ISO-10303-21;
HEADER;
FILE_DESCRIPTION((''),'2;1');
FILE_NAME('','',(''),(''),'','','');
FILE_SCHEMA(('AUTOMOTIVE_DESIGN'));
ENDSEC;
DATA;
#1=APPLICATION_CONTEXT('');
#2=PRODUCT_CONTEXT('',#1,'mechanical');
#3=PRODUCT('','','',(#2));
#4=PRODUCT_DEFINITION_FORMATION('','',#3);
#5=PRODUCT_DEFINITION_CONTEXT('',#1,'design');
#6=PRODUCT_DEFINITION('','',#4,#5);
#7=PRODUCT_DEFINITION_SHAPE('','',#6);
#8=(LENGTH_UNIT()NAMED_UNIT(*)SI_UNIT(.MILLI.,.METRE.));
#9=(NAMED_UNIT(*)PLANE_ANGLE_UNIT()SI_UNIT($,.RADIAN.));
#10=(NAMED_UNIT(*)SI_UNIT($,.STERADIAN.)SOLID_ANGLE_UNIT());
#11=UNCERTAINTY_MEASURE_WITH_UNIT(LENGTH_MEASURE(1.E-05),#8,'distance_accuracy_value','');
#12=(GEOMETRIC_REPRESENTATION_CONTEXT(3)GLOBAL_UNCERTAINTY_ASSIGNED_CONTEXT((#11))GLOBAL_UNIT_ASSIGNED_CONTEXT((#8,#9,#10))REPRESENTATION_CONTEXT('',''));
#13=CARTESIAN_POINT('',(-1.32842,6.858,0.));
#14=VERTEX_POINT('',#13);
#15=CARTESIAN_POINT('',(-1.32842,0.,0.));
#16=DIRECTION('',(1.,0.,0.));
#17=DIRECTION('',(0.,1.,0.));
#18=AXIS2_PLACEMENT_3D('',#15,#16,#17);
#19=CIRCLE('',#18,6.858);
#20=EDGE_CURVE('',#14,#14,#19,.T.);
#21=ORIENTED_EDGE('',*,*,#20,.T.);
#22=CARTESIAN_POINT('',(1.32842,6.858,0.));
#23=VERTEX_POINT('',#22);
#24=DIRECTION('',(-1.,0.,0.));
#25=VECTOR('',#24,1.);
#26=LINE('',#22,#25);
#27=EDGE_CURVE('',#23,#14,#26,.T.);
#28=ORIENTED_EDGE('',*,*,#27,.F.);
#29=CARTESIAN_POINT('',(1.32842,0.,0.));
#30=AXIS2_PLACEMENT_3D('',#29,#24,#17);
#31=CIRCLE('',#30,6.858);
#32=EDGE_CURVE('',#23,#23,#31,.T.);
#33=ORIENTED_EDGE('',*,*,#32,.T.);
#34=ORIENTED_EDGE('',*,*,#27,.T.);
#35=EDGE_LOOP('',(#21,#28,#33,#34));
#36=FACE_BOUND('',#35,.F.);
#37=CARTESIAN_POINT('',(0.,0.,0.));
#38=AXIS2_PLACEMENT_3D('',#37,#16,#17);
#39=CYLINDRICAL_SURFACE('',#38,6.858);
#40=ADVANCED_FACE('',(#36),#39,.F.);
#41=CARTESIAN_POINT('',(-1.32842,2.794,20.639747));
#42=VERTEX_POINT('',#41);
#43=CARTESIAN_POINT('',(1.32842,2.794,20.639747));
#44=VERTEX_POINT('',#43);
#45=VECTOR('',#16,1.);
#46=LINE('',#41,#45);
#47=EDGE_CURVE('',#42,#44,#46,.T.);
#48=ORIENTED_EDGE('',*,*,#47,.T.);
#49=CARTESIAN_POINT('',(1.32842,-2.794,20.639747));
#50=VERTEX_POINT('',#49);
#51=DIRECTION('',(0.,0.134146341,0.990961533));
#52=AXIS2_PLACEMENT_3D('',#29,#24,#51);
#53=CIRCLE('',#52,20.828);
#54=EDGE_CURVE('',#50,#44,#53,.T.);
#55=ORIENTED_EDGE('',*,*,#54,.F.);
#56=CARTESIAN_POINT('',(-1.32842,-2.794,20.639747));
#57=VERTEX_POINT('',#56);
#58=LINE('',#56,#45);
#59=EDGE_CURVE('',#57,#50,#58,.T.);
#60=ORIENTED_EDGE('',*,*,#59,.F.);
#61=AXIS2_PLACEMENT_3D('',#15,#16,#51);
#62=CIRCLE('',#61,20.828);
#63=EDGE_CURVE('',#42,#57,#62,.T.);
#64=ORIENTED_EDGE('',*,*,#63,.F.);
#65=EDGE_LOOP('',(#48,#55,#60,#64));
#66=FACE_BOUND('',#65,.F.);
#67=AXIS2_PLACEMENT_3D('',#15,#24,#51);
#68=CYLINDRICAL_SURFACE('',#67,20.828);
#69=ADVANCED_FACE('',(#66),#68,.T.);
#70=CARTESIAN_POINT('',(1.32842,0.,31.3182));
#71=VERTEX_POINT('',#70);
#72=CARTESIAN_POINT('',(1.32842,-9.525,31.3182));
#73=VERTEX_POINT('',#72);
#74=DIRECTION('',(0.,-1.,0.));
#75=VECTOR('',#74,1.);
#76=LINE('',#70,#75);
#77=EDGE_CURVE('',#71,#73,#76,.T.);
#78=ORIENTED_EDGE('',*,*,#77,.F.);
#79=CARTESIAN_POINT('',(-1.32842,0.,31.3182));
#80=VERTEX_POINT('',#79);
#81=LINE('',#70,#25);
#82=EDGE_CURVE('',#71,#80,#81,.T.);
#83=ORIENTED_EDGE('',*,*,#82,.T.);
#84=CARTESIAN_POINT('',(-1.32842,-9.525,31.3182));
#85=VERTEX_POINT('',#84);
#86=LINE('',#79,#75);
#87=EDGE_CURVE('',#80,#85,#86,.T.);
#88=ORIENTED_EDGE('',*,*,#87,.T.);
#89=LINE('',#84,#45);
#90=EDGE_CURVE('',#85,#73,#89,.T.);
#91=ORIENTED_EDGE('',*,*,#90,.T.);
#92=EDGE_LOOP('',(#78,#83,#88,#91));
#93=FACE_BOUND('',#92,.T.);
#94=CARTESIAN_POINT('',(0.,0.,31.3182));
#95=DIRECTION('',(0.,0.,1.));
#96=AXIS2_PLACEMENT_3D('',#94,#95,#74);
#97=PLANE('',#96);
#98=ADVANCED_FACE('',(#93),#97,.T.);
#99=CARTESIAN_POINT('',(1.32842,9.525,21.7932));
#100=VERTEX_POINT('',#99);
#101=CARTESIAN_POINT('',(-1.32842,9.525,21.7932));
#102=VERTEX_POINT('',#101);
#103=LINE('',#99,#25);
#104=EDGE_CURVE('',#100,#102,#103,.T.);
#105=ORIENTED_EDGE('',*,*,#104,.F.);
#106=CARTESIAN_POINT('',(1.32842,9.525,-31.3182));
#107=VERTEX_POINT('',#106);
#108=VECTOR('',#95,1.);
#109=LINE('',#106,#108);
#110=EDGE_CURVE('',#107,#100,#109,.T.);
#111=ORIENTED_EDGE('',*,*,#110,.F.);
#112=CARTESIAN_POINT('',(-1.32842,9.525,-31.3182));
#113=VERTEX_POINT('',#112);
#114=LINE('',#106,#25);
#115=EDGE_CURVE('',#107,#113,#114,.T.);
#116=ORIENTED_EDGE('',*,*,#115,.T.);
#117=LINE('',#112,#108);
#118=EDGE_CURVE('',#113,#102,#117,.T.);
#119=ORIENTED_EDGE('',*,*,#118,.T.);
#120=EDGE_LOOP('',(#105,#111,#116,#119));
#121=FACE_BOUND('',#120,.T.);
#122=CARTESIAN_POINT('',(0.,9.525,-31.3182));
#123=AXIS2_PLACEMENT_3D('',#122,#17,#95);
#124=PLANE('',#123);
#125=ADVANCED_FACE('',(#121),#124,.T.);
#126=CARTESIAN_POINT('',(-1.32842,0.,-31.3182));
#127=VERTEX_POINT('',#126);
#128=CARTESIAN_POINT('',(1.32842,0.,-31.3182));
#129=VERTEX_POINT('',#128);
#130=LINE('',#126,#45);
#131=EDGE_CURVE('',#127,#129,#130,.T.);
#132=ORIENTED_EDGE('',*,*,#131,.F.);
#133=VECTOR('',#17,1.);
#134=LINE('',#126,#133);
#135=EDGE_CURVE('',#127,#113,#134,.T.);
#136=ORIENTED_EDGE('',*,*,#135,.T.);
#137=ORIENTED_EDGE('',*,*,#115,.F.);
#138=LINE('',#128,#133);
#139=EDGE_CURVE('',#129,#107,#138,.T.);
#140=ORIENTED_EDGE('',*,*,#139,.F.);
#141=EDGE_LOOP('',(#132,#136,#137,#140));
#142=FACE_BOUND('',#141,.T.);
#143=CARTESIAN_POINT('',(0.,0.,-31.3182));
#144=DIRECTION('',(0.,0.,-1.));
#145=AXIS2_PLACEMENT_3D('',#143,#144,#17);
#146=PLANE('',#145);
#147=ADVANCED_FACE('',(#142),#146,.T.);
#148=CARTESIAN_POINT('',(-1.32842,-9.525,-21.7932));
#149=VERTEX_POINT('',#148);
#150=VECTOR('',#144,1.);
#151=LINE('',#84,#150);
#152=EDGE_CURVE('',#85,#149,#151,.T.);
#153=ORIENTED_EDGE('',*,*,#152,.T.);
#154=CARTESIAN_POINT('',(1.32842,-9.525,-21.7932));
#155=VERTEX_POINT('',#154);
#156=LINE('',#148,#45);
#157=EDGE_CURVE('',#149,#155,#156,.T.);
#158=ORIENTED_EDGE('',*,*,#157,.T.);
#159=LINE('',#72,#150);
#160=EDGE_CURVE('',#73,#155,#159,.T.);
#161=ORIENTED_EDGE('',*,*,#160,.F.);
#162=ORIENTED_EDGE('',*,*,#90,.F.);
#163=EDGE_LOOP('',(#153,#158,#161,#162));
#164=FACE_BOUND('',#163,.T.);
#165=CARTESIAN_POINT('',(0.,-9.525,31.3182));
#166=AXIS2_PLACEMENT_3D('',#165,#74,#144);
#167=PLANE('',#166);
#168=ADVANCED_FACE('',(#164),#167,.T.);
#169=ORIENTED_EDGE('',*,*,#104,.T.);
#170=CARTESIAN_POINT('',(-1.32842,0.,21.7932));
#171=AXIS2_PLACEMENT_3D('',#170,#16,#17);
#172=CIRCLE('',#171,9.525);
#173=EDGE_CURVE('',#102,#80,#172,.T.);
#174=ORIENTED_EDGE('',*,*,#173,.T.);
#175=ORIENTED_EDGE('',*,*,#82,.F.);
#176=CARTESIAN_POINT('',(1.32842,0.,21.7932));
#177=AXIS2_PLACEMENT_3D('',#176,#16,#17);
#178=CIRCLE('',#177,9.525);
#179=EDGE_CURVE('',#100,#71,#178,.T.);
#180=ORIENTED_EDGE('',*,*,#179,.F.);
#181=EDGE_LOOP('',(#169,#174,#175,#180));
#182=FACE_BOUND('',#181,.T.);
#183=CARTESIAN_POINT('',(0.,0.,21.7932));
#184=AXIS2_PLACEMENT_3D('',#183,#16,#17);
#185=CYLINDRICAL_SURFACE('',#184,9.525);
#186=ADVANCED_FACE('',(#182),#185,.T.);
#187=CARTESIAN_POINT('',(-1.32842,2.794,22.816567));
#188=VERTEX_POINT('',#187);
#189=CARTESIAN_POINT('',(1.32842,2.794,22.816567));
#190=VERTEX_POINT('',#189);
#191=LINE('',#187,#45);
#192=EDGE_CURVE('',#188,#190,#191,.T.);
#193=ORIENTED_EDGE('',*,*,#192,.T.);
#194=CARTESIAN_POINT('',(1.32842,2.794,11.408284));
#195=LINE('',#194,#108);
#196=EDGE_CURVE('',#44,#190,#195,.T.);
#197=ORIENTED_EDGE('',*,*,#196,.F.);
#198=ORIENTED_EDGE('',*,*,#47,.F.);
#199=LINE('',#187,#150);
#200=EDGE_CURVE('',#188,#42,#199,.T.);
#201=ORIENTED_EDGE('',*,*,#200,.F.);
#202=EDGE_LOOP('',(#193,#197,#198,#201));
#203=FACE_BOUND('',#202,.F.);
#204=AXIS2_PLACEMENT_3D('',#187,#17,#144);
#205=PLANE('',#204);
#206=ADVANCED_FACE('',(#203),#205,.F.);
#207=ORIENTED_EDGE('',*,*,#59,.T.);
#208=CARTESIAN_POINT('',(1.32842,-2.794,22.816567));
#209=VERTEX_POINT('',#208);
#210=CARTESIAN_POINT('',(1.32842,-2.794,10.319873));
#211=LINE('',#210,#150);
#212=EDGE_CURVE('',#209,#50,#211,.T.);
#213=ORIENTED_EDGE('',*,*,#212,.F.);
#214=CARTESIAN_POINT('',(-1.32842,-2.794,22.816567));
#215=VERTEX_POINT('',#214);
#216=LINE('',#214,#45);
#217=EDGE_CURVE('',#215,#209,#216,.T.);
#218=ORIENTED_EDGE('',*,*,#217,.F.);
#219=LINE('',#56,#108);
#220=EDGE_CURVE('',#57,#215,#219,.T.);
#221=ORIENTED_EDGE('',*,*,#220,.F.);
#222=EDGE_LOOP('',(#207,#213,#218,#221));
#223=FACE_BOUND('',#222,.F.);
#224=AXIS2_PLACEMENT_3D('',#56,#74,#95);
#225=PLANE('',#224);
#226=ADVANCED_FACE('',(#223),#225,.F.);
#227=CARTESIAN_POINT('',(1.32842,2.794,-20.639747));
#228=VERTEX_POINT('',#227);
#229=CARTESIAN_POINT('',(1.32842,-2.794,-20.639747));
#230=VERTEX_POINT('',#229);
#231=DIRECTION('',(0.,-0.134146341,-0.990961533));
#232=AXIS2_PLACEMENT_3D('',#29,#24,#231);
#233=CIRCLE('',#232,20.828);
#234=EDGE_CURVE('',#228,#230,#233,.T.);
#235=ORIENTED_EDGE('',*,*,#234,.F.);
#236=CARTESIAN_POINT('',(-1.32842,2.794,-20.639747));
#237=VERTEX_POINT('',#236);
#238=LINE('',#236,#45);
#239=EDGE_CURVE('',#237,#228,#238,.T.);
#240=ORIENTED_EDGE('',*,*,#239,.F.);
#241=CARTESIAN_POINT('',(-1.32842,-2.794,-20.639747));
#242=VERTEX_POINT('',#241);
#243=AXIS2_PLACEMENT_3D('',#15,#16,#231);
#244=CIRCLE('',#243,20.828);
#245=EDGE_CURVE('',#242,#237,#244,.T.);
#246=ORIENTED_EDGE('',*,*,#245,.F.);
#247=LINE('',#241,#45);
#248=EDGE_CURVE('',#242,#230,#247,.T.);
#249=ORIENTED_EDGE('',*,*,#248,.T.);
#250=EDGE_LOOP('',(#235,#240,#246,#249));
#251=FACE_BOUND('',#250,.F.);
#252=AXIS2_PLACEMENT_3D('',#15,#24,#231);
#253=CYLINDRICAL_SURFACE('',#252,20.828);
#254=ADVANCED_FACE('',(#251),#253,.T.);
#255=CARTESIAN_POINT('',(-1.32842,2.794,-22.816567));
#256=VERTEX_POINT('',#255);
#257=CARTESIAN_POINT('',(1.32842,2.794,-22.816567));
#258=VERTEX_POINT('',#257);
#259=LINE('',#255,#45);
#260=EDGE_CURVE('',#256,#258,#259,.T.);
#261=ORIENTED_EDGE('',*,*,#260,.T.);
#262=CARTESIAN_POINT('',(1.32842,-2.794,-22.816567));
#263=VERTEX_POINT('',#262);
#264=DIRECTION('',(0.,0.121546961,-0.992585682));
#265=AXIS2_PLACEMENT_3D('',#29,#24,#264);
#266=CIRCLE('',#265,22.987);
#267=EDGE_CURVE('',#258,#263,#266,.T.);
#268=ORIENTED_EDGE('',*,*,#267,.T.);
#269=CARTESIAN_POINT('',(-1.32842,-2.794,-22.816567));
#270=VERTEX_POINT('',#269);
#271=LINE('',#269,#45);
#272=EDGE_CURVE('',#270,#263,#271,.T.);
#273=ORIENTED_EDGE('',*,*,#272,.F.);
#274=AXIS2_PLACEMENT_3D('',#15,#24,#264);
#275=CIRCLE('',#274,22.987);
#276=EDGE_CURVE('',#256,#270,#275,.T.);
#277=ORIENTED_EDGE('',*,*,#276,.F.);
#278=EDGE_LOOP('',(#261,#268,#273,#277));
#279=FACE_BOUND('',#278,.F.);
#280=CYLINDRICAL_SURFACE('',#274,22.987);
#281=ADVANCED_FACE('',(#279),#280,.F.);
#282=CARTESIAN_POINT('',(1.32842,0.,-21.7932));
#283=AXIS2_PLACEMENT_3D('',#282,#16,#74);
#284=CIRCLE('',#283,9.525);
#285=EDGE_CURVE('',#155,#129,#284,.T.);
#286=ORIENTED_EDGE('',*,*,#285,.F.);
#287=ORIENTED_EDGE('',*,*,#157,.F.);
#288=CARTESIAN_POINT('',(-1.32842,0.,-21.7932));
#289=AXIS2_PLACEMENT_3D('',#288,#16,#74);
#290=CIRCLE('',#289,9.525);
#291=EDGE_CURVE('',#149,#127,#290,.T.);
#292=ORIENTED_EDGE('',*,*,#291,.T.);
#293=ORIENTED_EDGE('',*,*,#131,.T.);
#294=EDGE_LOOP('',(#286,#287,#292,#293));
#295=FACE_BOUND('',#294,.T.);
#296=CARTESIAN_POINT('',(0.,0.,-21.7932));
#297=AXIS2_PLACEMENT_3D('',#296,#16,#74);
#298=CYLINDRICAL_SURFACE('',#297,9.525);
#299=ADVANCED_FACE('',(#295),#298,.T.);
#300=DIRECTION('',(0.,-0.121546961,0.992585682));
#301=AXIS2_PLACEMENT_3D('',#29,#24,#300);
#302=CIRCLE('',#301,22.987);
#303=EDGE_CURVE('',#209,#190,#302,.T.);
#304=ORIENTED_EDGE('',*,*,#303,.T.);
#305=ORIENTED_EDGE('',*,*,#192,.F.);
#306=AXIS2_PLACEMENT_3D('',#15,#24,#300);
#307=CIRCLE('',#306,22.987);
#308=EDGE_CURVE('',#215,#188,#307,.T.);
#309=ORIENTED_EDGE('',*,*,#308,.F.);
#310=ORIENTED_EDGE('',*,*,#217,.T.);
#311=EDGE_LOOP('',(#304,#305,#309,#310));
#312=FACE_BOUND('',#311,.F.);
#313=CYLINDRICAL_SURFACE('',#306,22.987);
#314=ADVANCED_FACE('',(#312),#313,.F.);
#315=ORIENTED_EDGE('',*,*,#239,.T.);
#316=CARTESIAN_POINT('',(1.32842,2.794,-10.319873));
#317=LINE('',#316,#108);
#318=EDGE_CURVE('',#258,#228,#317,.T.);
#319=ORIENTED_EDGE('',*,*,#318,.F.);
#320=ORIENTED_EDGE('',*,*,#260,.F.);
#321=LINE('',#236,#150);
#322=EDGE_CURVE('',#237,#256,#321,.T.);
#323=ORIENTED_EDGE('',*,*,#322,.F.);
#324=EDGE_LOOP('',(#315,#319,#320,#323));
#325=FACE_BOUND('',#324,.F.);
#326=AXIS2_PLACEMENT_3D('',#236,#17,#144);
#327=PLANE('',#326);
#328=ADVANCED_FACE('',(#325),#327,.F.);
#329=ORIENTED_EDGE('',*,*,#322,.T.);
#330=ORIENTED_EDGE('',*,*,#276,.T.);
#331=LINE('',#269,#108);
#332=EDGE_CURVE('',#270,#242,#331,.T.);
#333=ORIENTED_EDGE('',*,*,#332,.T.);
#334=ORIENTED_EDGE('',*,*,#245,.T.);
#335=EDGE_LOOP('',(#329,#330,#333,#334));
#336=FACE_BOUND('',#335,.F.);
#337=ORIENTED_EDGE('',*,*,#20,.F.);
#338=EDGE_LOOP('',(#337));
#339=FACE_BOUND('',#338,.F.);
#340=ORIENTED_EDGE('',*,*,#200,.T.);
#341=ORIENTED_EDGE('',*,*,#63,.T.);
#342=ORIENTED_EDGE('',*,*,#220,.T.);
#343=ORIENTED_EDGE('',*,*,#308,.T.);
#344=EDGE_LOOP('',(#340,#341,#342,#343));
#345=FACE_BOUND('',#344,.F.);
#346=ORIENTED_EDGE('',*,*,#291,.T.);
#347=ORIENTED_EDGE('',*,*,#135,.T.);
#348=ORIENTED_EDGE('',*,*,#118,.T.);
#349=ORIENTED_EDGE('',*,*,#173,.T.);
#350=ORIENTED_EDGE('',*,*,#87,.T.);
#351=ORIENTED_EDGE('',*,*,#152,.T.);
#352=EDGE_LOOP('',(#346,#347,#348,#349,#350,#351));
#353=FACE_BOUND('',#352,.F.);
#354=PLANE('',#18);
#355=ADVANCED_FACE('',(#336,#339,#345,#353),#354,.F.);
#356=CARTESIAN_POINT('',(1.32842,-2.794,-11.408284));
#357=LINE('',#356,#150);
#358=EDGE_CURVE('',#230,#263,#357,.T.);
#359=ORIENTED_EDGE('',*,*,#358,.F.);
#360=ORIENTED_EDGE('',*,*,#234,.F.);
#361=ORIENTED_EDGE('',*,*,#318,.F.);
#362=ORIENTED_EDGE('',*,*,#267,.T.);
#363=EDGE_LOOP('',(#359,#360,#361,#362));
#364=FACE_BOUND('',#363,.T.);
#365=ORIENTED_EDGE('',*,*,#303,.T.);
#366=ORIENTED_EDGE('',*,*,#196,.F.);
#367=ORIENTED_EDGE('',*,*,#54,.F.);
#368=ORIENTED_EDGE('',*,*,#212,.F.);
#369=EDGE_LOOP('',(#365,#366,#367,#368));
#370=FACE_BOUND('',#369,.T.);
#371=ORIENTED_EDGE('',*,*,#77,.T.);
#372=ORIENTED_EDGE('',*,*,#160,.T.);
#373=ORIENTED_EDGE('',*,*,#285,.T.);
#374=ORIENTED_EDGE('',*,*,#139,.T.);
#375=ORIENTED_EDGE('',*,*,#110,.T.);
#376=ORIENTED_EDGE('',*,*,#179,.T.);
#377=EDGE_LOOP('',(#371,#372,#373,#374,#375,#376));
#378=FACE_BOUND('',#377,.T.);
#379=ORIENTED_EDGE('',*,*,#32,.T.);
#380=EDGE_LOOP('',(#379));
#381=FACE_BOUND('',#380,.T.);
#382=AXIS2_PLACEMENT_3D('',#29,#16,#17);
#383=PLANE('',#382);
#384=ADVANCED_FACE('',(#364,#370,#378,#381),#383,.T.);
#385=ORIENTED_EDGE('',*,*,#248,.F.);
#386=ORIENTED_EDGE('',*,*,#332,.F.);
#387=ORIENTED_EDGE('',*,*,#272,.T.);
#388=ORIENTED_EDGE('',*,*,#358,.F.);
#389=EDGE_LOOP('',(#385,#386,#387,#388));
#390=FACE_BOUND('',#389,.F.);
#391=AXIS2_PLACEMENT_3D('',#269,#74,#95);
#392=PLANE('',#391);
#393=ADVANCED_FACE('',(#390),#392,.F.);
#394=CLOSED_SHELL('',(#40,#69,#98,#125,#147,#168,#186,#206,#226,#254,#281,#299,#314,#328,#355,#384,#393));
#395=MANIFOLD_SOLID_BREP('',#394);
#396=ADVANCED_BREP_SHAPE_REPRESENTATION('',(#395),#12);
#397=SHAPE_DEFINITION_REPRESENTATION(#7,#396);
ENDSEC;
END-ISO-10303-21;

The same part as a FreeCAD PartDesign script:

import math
import FreeCAD as App
import Part
import Sketcher

V = App.Vector
Q = App.Units.Quantity

doc = App.newDocument("Part")
params = doc.addObject("Spreadsheet::Sheet", "Params")
for row, (alias, value) in enumerate([
    ("sketch1_radius", "0.375 in"),
    ("sketch1_height", "2.091 in"),
    ("pad1_length", "0.1046 in"),
    ("sketch2_diameter", "0.54 in"),
    ("sketch3_radius", "0.82 in"),
    ("sketch3_radius2", "0.905 in"),
], start=1):
    params.set(f"A{row}", alias)
    params.set(f"B{row}", "=" + value)
    params.setAlias(f"B{row}", alias)

body = doc.addObject("PartDesign::Body", "Body")

sketch1 = body.newObject("Sketcher::SketchObject", "Sketch")
sketch1.AttachmentSupport = (doc.getObject("YZ_Plane"), [""])
sketch1.MapMode = "FlatFace"
sketch1.addGeometry(Part.LineSegment(V(0, 31, 0), V(-10, 31, 0)), False)
sketch1.addGeometry(Part.LineSegment(V(-10, 31, 0), V(-10, -22, 0)), False)
sketch1.addGeometry(Part.ArcOfCircle(Part.Circle(V(0, -22, 0), V(0, 0, 1), 10), math.radians(180), math.radians(270)), False)
sketch1.addGeometry(Part.LineSegment(V(0, -31, 0), V(10, -31, 0)), False)
sketch1.addGeometry(Part.LineSegment(V(10, -31, 0), V(10, 22, 0)), False)
sketch1.addGeometry(Part.ArcOfCircle(Part.Circle(V(0, 22, 0), V(0, 0, 1), 10), math.radians(0), math.radians(90)), False)
sketch1.addConstraint(Sketcher.Constraint("Coincident", 0, 2, 1, 1))
sketch1.addConstraint(Sketcher.Constraint("Tangent", 1, 2, 2, 1))
sketch1.addConstraint(Sketcher.Constraint("Tangent", 2, 2, 3, 1))
sketch1.addConstraint(Sketcher.Constraint("Coincident", 3, 2, 4, 1))
sketch1.addConstraint(Sketcher.Constraint("Tangent", 4, 2, 5, 1))
sketch1.addConstraint(Sketcher.Constraint("Tangent", 5, 2, 0, 1))
sketch1.addConstraint(Sketcher.Constraint("Horizontal", 0))
sketch1.addConstraint(Sketcher.Constraint("Vertical", 1))
sketch1.addConstraint(Sketcher.Constraint("Horizontal", 3))
sketch1.addConstraint(Sketcher.Constraint("Vertical", 4))
sketch1.addConstraint(Sketcher.Constraint("Equal", 2, 5))
sketch1.addConstraint(Sketcher.Constraint("Symmetric", 2, 3, 5, 3, -1, 1))
sketch1.addConstraint(Sketcher.Constraint("PointOnObject", 2, 3, -2))
sketch1.addConstraint(Sketcher.Constraint("Radius", 2, Q("0.375 in")))
sketch1.addConstraint(Sketcher.Constraint("DistanceY", 1, 2, 1, 1, Q("2.091 in")))
sketch1.setExpression("Constraints[13]", "Params.sketch1_radius")
sketch1.setExpression("Constraints[14]", "Params.sketch1_height")
pad1 = body.newObject("PartDesign::Pad", "Pad")
pad1.Profile = sketch1
pad1.setExpression("Length", "Params.pad1_length")
pad1.Midplane = True

sketch2 = body.newObject("Sketcher::SketchObject", "Sketch001")
sketch2.AttachmentSupport = (doc.getObject("YZ_Plane"), [""])
sketch2.MapMode = "FlatFace"
sketch2.addGeometry(Part.Circle(V(0, 0, 0), V(0, 0, 1), 7), False)
sketch2.addConstraint(Sketcher.Constraint("Coincident", 0, 3, -1, 1))
sketch2.addConstraint(Sketcher.Constraint("Diameter", 0, Q("0.54 in")))
sketch2.setExpression("Constraints[1]", "Params.sketch2_diameter")
pocket1 = body.newObject("PartDesign::Pocket", "Pocket")
pocket1.Profile = sketch2
pocket1.Type = "ThroughAll"
pocket1.Midplane = True

sketch3 = body.newObject("Sketcher::SketchObject", "Sketch002")
sketch3.AttachmentSupport = (doc.getObject("YZ_Plane"), [""])
sketch3.MapMode = "FlatFace"
sketch3.AttachmentOffset = App.Placement(V(0, 0, -0.0523 * 25.4), App.Rotation())
sketch3.addGeometry(Part.LineSegment(V(-2.8, 20.6, 0), V(-2.8, 22.8, 0)), False)
sketch3.addGeometry(Part.ArcOfCircle(Part.Circle(V(0, 0, 0), V(0, 0, 1), 23), math.radians(83.02), math.radians(96.98)), False)
sketch3.addGeometry(Part.LineSegment(V(2.8, 22.8, 0), V(2.8, 20.6, 0)), False)
sketch3.addGeometry(Part.ArcOfCircle(Part.Circle(V(0, 0, 0), V(0, 0, 1), 20.8), math.radians(82.29), math.radians(97.71)), False)
sketch3.addGeometry(Part.LineSegment(V(2.8, -20.6, 0), V(2.8, -22.8, 0)), False)
sketch3.addGeometry(Part.ArcOfCircle(Part.Circle(V(0, 0, 0), V(0, 0, 1), 23), math.radians(-96.98), math.radians(-83.02)), False)
sketch3.addGeometry(Part.LineSegment(V(-2.8, -22.8, 0), V(-2.8, -20.6, 0)), False)
sketch3.addGeometry(Part.ArcOfCircle(Part.Circle(V(0, 0, 0), V(0, 0, 1), 20.8), math.radians(-97.71), math.radians(-82.29)), False)
sketch3.addConstraint(Sketcher.Constraint("Coincident", 0, 2, 1, 2))
sketch3.addConstraint(Sketcher.Constraint("Coincident", 1, 1, 2, 1))
sketch3.addConstraint(Sketcher.Constraint("Coincident", 2, 2, 3, 1))
sketch3.addConstraint(Sketcher.Constraint("Coincident", 3, 2, 0, 1))
sketch3.addConstraint(Sketcher.Constraint("Coincident", 4, 2, 5, 2))
sketch3.addConstraint(Sketcher.Constraint("Coincident", 5, 1, 6, 1))
sketch3.addConstraint(Sketcher.Constraint("Coincident", 6, 2, 7, 1))
sketch3.addConstraint(Sketcher.Constraint("Coincident", 7, 2, 4, 1))
sketch3.addConstraint(Sketcher.Constraint("Vertical", 0))
sketch3.addConstraint(Sketcher.Constraint("Vertical", 2))
sketch3.addConstraint(Sketcher.Constraint("Vertical", 4))
sketch3.addConstraint(Sketcher.Constraint("Vertical", 6))
sketch3.addConstraint(Sketcher.Constraint("Coincident", 1, 3, -1, 1))
sketch3.addConstraint(Sketcher.Constraint("Coincident", 3, 3, -1, 1))
sketch3.addConstraint(Sketcher.Constraint("Coincident", 5, 3, -1, 1))
sketch3.addConstraint(Sketcher.Constraint("Coincident", 7, 3, -1, 1))
sketch3.addConstraint(Sketcher.Constraint("Equal", 1, 5))
sketch3.addConstraint(Sketcher.Constraint("Equal", 3, 7))
sketch3.addConstraint(Sketcher.Constraint("Horizontal", 0, 2, 1, 1))
sketch3.addConstraint(Sketcher.Constraint("Horizontal", 4, 2, 5, 1))
sketch3.addConstraint(Sketcher.Constraint("Vertical", 2, 2, 4, 2))
sketch3.addConstraint(Sketcher.Constraint("Radius", 3, Q("0.82 in")))
sketch3.addConstraint(Sketcher.Constraint("Radius", 1, Q("0.905 in")))
sketch3.addConstraint(Sketcher.Constraint("DistanceX", 0, 2, -1, 1, Q("0.11 in")))
sketch3.setExpression("Constraints[21]", "Params.sketch3_radius")
sketch3.setExpression("Constraints[22]", "Params.sketch3_radius2")
pocket2 = body.newObject("PartDesign::Pocket", "Pocket001")
pocket2.Profile = sketch3
pocket2.Type = "ThroughAll"
pocket2.Reversed = True

doc.recompute()
